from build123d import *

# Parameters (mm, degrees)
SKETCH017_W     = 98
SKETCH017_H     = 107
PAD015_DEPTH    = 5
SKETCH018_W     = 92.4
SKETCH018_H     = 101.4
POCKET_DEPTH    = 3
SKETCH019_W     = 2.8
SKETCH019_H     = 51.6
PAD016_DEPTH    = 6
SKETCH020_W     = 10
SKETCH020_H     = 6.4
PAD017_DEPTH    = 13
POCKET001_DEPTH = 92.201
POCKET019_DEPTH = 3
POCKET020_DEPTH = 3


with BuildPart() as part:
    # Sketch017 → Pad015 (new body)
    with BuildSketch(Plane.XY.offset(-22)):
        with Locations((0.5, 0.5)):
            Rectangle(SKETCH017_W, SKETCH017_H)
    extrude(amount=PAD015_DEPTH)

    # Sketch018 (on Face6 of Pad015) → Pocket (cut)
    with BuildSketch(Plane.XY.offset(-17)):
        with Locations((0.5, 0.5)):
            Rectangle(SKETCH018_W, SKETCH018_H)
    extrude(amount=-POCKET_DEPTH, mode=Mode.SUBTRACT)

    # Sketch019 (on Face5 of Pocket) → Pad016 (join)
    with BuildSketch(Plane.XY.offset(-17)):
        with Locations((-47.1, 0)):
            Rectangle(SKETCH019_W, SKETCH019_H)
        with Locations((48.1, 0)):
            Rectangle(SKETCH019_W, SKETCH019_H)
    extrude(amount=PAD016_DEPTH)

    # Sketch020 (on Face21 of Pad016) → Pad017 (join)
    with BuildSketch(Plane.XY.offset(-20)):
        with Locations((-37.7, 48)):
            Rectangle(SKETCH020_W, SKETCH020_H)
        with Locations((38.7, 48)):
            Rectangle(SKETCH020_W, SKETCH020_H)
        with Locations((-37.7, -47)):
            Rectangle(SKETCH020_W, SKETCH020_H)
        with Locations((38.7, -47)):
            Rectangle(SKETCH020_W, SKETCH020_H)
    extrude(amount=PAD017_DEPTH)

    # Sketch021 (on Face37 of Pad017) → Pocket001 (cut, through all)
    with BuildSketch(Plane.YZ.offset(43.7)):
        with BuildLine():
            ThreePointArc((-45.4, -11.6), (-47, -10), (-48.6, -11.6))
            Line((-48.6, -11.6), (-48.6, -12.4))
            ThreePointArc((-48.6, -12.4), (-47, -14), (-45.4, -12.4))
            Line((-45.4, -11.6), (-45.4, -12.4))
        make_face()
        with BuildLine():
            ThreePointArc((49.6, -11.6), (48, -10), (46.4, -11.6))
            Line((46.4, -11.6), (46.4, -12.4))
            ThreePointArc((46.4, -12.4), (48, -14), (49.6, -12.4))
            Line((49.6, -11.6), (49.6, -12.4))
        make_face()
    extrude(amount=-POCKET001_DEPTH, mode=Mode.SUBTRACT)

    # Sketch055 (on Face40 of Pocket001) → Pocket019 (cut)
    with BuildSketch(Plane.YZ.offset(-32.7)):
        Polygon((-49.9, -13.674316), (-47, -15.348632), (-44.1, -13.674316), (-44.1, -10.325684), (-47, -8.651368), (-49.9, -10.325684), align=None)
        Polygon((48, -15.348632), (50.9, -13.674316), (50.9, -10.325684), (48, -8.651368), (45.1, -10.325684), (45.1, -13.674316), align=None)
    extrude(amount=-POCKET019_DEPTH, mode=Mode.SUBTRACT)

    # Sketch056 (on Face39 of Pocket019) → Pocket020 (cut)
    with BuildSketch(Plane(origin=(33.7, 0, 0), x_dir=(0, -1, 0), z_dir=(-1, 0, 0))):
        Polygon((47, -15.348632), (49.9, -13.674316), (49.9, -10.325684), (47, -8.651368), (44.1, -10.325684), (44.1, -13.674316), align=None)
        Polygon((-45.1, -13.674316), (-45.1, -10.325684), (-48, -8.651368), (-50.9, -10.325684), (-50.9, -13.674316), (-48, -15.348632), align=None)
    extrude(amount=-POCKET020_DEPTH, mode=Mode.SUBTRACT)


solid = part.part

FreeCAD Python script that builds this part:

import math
import FreeCAD as App
import Part
import Sketcher
from FreeCAD import Vector
Q = App.Units.Quantity


def add_polygon(sketch, points):
    """Adds a closed chain of lines whose ends are joined by coincident constraints."""
    first, n = sketch.GeometryCount, len(points)
    for a, b in zip(points, points[1:] + points[:1]):
        sketch.addGeometry(Part.LineSegment(App.Vector(*a, 0), App.Vector(*b, 0)), False)
    for i in range(n):
        sketch.addConstraint(Sketcher.Constraint("Coincident", first + i, 2, first + (i + 1) % n, 1))

doc = App.newDocument("Part")
body = doc.addObject("PartDesign::Body", "Body")

# Sketch on XY plane
sketch1 = doc.addObject("Sketcher::SketchObject", "Sketch")
body.addObject(sketch1)
sketch1.AttachmentSupport = (doc.XY_Plane, [""])
sketch1.MapMode = "FlatFace"
sketch1.AttachmentOffset = App.Placement(Vector(0, 0, -22), App.Rotation())
add_polygon(sketch1, [(-48, 54), (-48, -53), (50, -53), (50, 54)])  # lines 0-3
sketch1.addConstraint([
    Sketcher.Constraint("Vertical", 0),
    Sketcher.Constraint("Horizontal", 1),
    Sketcher.Constraint("Vertical", 2),
    Sketcher.Constraint("Horizontal", 3),
    Sketcher.Constraint("DistanceX", 1, 1, 1, 2, 98.0),
    Sketcher.Constraint("DistanceY", 0, 2, 0, 1, 107.0),
    Sketcher.Constraint("DistanceY", 0, 2, -1, 1, 53.0),
    Sketcher.Constraint("DistanceX", 0, 2, -1, 1, 48.5),
])
pad1 = doc.addObject("PartDesign::Pad", "Pad")
body.addObject(pad1)
pad1.Profile = sketch1
pad1.Length = 5

# Sketch on XY plane
sketch2 = doc.addObject("Sketcher::SketchObject", "Sketch001")
body.addObject(sketch2)
sketch2.AttachmentSupport = (doc.XY_Plane, [""])
sketch2.MapMode = "FlatFace"
sketch2.AttachmentOffset = App.Placement(Vector(0, 0, -17), App.Rotation())
add_polygon(sketch2, [(-46, 51), (-46, -50), (47, -50), (47, 51)])  # lines 0-3
sketch2.addConstraint([
    Sketcher.Constraint("Vertical", 0),
    Sketcher.Constraint("Horizontal", 1),
    Sketcher.Constraint("Vertical", 2),
    Sketcher.Constraint("Horizontal", 3),
    Sketcher.Constraint("DistanceX", 1, 1, 1, 2, 92.4),
    Sketcher.Constraint("DistanceY", 0, 2, 0, 1, 101.4),
    Sketcher.Constraint("DistanceX", 0, 2, -1, 1, 45.7),
    Sketcher.Constraint("DistanceY", 0, 2, -1, 1, 50.2),
])
pocket1 = doc.addObject("PartDesign::Pocket", "Pocket")
body.addObject(pocket1)
pocket1.Profile = sketch2
pocket1.Length = 3

# Sketch on XY plane
sketch3 = doc.addObject("Sketcher::SketchObject", "Sketch002")
body.addObject(sketch3)
sketch3.AttachmentSupport = (doc.XY_Plane, [""])
sketch3.MapMode = "FlatFace"
sketch3.AttachmentOffset = App.Placement(Vector(0, 0, -17), App.Rotation())
add_polygon(sketch3, [(-48.5, 25.8), (-48.5, -25.8), (-45.7, -25.8), (-45.7, 25.8)])  # lines 0-3
add_polygon(sketch3, [(46.7, 25.8), (46.7, -25.8), (49.5, -25.8), (49.5, 25.8)])  # lines 4-7
sketch3.addConstraint([
    Sketcher.Constraint("Vertical", 0),
    Sketcher.Constraint("Horizontal", 1),
    Sketcher.Constraint("Vertical", 2),
    Sketcher.Constraint("Horizontal", 3),
    Sketcher.Constraint("Vertical", 4),
    Sketcher.Constraint("Horizontal", 5),
    Sketcher.Constraint("Vertical", 6),
    Sketcher.Constraint("Horizontal", 7),
    Sketcher.Constraint("Horizontal", 1, 2, 4, 2),
    Sketcher.Constraint("Horizontal", 3, 2, 6, 2),
    Sketcher.Constraint("Equal", 3, 5),
    Sketcher.Constraint("DistanceX", 1, 1, 1, 2, 2.8),
    Sketcher.Constraint("DistanceY", 0, 2, 0, 1, 51.6),
    Sketcher.Constraint("DistanceX", 0, 2, 5, 2, 98.0),
    Sketcher.Constraint("DistanceX", 0, 2, -1, 1, 48.5),
    Sketcher.Constraint("DistanceY", 0, 2, -1, 1, 25.8),
])
pad2 = doc.addObject("PartDesign::Pad", "Pad001")
body.addObject(pad2)
pad2.Profile = sketch3
pad2.Length = 6

# Sketch on XY plane
sketch4 = doc.addObject("Sketcher::SketchObject", "Sketch003")
body.addObject(sketch4)
sketch4.AttachmentSupport = (doc.XY_Plane, [""])
sketch4.MapMode = "FlatFace"
sketch4.AttachmentOffset = App.Placement(Vector(0, 0, -20), App.Rotation())
add_polygon(sketch4, [(-43, 51), (-43, 45), (-33, 45), (-33, 51)])  # lines 0-3
add_polygon(sketch4, [(34, 51), (34, 45), (44, 45), (44, 51)])  # lines 4-7
add_polygon(sketch4, [(-43, -44), (-43, -50), (-33, -50), (-33, -44)])  # lines 8-11
add_polygon(sketch4, [(34, -44), (34, -50), (44, -50), (44, -44)])  # lines 12-15
sketch4.addConstraint([
    Sketcher.Constraint("Vertical", 0),
    Sketcher.Constraint("Horizontal", 1),
    Sketcher.Constraint("Vertical", 2),
    Sketcher.Constraint("Horizontal", 3),
    Sketcher.Constraint("Vertical", 4),
    Sketcher.Constraint("Horizontal", 5),
    Sketcher.Constraint("Vertical", 6),
    Sketcher.Constraint("Horizontal", 7),
    Sketcher.Constraint("Vertical", 8),
    Sketcher.Constraint("Horizontal", 9),
    Sketcher.Constraint("Vertical", 10),
    Sketcher.Constraint("Horizontal", 11),
    Sketcher.Constraint("Vertical", 12),
    Sketcher.Constraint("Horizontal", 13),
    Sketcher.Constraint("Vertical", 14),
    Sketcher.Constraint("Horizontal", 15),
    Sketcher.Constraint("Horizontal", 1, 2, 4, 2),
    Sketcher.Constraint("Horizontal", 3, 2, 6, 2),
    Sketcher.Constraint("Horizontal", 9, 2, 12, 2),
    Sketcher.Constraint("Horizontal", 11, 2, 14, 2),
    Sketcher.Constraint("Vertical", 3, 2, 8, 2),
    Sketcher.Constraint("Vertical", 2, 2, 9, 2),
    Sketcher.Constraint("Vertical", 7, 2, 12, 2),
    Sketcher.Constraint("Vertical", 6, 2, 13, 2),
    Sketcher.Constraint("Equal", 3, 5),
    Sketcher.Constraint("Equal", 6, 8),
    Sketcher.Constraint("DistanceX", 1, 1, 1, 2, 10.0),
    Sketcher.Constraint("DistanceY", 0, 2, 0, 1, 6.4),
    Sketcher.Constraint("DistanceY", 8, 2, 0, 2, 95.0),
    Sketcher.Constraint("DistanceX", 0, 2, -1, 1, 42.7),
    Sketcher.Constraint("DistanceY", -1, 1, 0, 2, 44.8),
    Sketcher.Constraint("DistanceX", -1, 1, 4, 2, 33.7),
])
pad3 = doc.addObject("PartDesign::Pad", "Pad002")
body.addObject(pad3)
pad3.Profile = sketch4
pad3.Length = 13

# Sketch on YZ plane
sketch5 = doc.addObject("Sketcher::SketchObject", "Sketch004")
body.addObject(sketch5)
sketch5.AttachmentSupport = (doc.YZ_Plane, [""])
sketch5.MapMode = "FlatFace"
sketch5.AttachmentOffset = App.Placement(Vector(0, 0, 43.7), App.Rotation())
sketch5.addGeometry([
    Part.ArcOfCircle(Part.Circle(Vector(-47, -11.6, 0), Vector(0, 0, 1), 1.6), math.radians(0), math.radians(180)),  # 0
    Part.LineSegment(Vector(-48.6, -11.6, 0), Vector(-48.6, -12.4, 0)),  # 1
    Part.ArcOfCircle(Part.Circle(Vector(-47, -12.4, 0), Vector(0, 0, 1), 1.6), math.radians(180), math.radians(360)),  # 2
    Part.LineSegment(Vector(-45.4, -12.4, 0), Vector(-45.4, -11.6, 0)),  # 3
    Part.ArcOfCircle(Part.Circle(Vector(48, -11.6, 0), Vector(0, 0, 1), 1.6), math.radians(0), math.radians(180)),  # 4
    Part.LineSegment(Vector(46.4, -11.6, 0), Vector(46.4, -12.4, 0)),  # 5
    Part.ArcOfCircle(Part.Circle(Vector(48, -12.4, 0), Vector(0, 0, 1), 1.6), math.radians(180), math.radians(360)),  # 6
    Part.LineSegment(Vector(49.6, -12.4, 0), Vector(49.6, -11.6, 0)),  # 7
], False)
sketch5.addConstraint([
    Sketcher.Constraint("Tangent", 0, 2, 1, 1),
    Sketcher.Constraint("Tangent", 1, 2, 2, 1),
    Sketcher.Constraint("Tangent", 2, 2, 3, 1),
    Sketcher.Constraint("Tangent", 3, 2, 0, 1),
    Sketcher.Constraint("Tangent", 4, 2, 5, 1),
    Sketcher.Constraint("Tangent", 5, 2, 6, 1),
    Sketcher.Constraint("Tangent", 6, 2, 7, 1),
    Sketcher.Constraint("Tangent", 7, 2, 4, 1),
    Sketcher.Constraint("Vertical", 1),
    Sketcher.Constraint("Vertical", 3),
    Sketcher.Constraint("Vertical", 5),
    Sketcher.Constraint("Vertical", 7),
    Sketcher.Constraint("Equal", 2, 4),
    Sketcher.Constraint("Horizontal", 0, 3, 4, 3),
    Sketcher.Constraint("Horizontal", 2, 3, 6, 3),
    Sketcher.Constraint("Radius", 0, 1.6),
    Sketcher.Constraint("DistanceY", 1, 2, 1, 1, 0.8),
    Sketcher.Constraint("DistanceX", 0, 3, -1, 1, 47.0),
    Sketcher.Constraint("DistanceX", -1, 1, 4, 3, 48.0),
    Sketcher.Constraint("DistanceY", 0, 3, -1, 1, 11.6),
])
pocket2 = doc.addObject("PartDesign::Pocket", "Pocket001")
body.addObject(pocket2)
pocket2.Profile = sketch5
pocket2.Type = "ThroughAll"

# Sketch on YZ plane
sketch6 = doc.addObject("Sketcher::SketchObject", "Sketch005")
body.addObject(sketch6)
sketch6.AttachmentSupport = (doc.YZ_Plane, [""])
sketch6.MapMode = "FlatFace"
sketch6.AttachmentOffset = App.Placement(Vector(0, 0, -32.7), App.Rotation())
add_polygon(sketch6, [(-49.9, -13.7), (-47, -15.3), (-44.1, -13.7), (-44.1, -10.3), (-47, -8.7), (-49.9, -10.3)])  # lines 0-5
add_polygon(sketch6, [(48, -15.3), (50.9, -13.7), (50.9, -10.3), (48, -8.7), (45.1, -10.3), (45.1, -13.7)])  # lines 6-11
sketch6.addConstraint([
    Sketcher.Constraint("Vertical", 2),
    Sketcher.Constraint("Vertical", 5),
    Sketcher.Constraint("Vertical", 7),
    Sketcher.Constraint("Vertical", 10),
    Sketcher.Constraint("Parallel", 0, 3),
    Sketcher.Constraint("Parallel", 1, 4),
    Sketcher.Constraint("Parallel", 4, 6),
    Sketcher.Constraint("Parallel", 3, 8),
    Sketcher.Constraint("Parallel", 6, 9),
    Sketcher.Constraint("Parallel", 8, 11),
    Sketcher.Constraint("Horizontal", 2, 2, 4, 2),
    Sketcher.Constraint("Horizontal", 1, 2, 5, 2),
    Sketcher.Constraint("Horizontal", 5, 2, 6, 2),
    Sketcher.Constraint("Horizontal", 4, 2, 7, 2),
    Sketcher.Constraint("Horizontal", 3, 2, 8, 2),
    Sketcher.Constraint("Horizontal", 7, 2, 9, 2),
    Sketcher.Constraint("Horizontal", 6, 2, 10, 2),
    Sketcher.Constraint("Vertical", 0, 2, 3, 2),
    Sketcher.Constraint("Angle", 0, Q("-30.000003 deg")),
    Sketcher.Constraint("DistanceX", 0, 2, -1, 1, 47.0),
    Sketcher.Constraint("DistanceX", -1, 1, 8, 2, 48.0),
    Sketcher.Constraint("DistanceX", 1, 2, -1, 1, 44.1),
    Sketcher.Constraint("DistanceY", 2, 1, 2, 2, 3.348632),
    Sketcher.Constraint("DistanceY", 0, 2, -1, 1, 15.348632),
])
pocket3 = doc.addObject("PartDesign::Pocket", "Pocket002")
body.addObject(pocket3)
pocket3.Profile = sketch6
pocket3.Length = 3

# Sketch on YZ plane
sketch7 = doc.addObject("Sketcher::SketchObject", "Sketch006")
body.addObject(sketch7)
sketch7.AttachmentSupport = (doc.YZ_Plane, [""])
sketch7.MapMode = "FlatFace"
sketch7.AttachmentOffset = App.Placement(Vector(0, 0, 33.7), App.Rotation())
add_polygon(sketch7, [(-47, -15.3), (-49.9, -13.7), (-49.9, -10.3), (-47, -8.7), (-44.1, -10.3), (-44.1, -13.7)])  # lines 0-5
add_polygon(sketch7, [(45.1, -13.7), (45.1, -10.3), (48, -8.7), (50.9, -10.3), (50.9, -13.7), (48, -15.3)])  # lines 6-11
sketch7.addConstraint([
    Sketcher.Constraint("Vertical", 1),
    Sketcher.Constraint("Vertical", 4),
    Sketcher.Constraint("Vertical", 6),
    Sketcher.Constraint("Vertical", 9),
    Sketcher.Constraint("Parallel", 0, 3),
    Sketcher.Constraint("Parallel", 2, 5),
    Sketcher.Constraint("Parallel", 5, 7),
    Sketcher.Constraint("Parallel", 3, 8),
    Sketcher.Constraint("Parallel", 7, 10),
    Sketcher.Constraint("Parallel", 8, 11),
    Sketcher.Constraint("Horizontal", 1, 2, 3, 2),
    Sketcher.Constraint("Horizontal", 0, 2, 4, 2),
    Sketcher.Constraint("Horizontal", 3, 2, 6, 2),
    Sketcher.Constraint("Horizontal", 2, 2, 7, 2),
    Sketcher.Constraint("Horizontal", 6, 2, 8, 2),
    Sketcher.Constraint("Horizontal", 4, 2, 9, 2),
    Sketcher.Constraint("Horizontal", 5, 2, 10, 2),
    Sketcher.Constraint("Vertical", 2, 2, 5, 2),
    Sketcher.Constraint("Angle", 0, Q("149.999997 deg")),
    Sketcher.Constraint("DistanceX", 2, 2, -1, 1, 47.0),
    Sketcher.Constraint("DistanceX", -1, 1, 7, 2, 48.0),
    Sketcher.Constraint("DistanceX", 0, 2, -1, 1, 49.9),
    Sketcher.Constraint("DistanceY", 1, 1, 1, 2, 3.348632),
    Sketcher.Constraint("DistanceY", 0, 2, -1, 1, 13.674316),
])
pocket4 = doc.addObject("PartDesign::Pocket", "Pocket003")
body.addObject(pocket4)
pocket4.Profile = sketch7
pocket4.Length = 3
pocket4.Reversed = True

doc.recompute()
